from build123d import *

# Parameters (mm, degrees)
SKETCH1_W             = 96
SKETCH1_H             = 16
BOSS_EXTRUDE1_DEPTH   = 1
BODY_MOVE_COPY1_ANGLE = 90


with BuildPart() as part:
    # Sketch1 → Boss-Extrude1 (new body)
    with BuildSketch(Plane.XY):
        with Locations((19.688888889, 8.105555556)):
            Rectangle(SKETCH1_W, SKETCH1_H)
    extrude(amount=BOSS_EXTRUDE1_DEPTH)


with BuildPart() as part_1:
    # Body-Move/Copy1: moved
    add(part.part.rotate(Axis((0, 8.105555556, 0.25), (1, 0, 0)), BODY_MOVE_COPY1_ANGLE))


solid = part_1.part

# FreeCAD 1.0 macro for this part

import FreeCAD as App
import Part
import Sketcher

V = App.Vector

doc = App.newDocument("Part")
body = doc.addObject("PartDesign::Body", "Body")

sketch1 = body.newObject("Sketcher::SketchObject", "Sketch")
sketch1.AttachmentSupport = (doc.getObject("XY_Plane"), [""])
sketch1.MapMode = "FlatFace"
sketch1.addGeometry(Part.LineSegment(V(-28, 16, 0), V(-28, 0, 0)), False)
sketch1.addGeometry(Part.LineSegment(V(-28, 0, 0), V(68, 0, 0)), False)
sketch1.addGeometry(Part.LineSegment(V(68, 0, 0), V(68, 16, 0)), False)
sketch1.addGeometry(Part.LineSegment(V(68, 16, 0), V(-28, 16, 0)), False)
sketch1.addConstraint(Sketcher.Constraint("Coincident", 0, 2, 1, 1))
sketch1.addConstraint(Sketcher.Constraint("Coincident", 1, 2, 2, 1))
sketch1.addConstraint(Sketcher.Constraint("Coincident", 2, 2, 3, 1))
sketch1.addConstraint(Sketcher.Constraint("Coincident", 3, 2, 0, 1))
sketch1.addConstraint(Sketcher.Constraint("Vertical", 0))
sketch1.addConstraint(Sketcher.Constraint("Horizontal", 1))
sketch1.addConstraint(Sketcher.Constraint("Vertical", 2))
sketch1.addConstraint(Sketcher.Constraint("Horizontal", 3))
sketch1.addConstraint(Sketcher.Constraint("DistanceX", 1, 1, 1, 2, 96.0))
sketch1.addConstraint(Sketcher.Constraint("DistanceY", 0, 2, 0, 1, 16.0))
sketch1.addConstraint(Sketcher.Constraint("DistanceX", 0, 2, -1, 1, 28.311111))
sketch1.addConstraint(Sketcher.Constraint("DistanceY", -1, 1, 0, 2, 0.105556))
pad1 = body.newObject("PartDesign::Pad", "Pad")
pad1.Profile = sketch1
pad1.Length = 1
body2 = doc.addObject("PartDesign::Body", "Body001")
doc.recompute()

body.Placement = App.Placement(V(0, 8.355556, -7.855556), App.Rotation(V(1, 0, 0), 90))
boolean = body2.newObject("PartDesign::Boolean", "Boolean")
boolean.Type = "Fuse"
boolean.addObjects([body])

doc.recompute()
